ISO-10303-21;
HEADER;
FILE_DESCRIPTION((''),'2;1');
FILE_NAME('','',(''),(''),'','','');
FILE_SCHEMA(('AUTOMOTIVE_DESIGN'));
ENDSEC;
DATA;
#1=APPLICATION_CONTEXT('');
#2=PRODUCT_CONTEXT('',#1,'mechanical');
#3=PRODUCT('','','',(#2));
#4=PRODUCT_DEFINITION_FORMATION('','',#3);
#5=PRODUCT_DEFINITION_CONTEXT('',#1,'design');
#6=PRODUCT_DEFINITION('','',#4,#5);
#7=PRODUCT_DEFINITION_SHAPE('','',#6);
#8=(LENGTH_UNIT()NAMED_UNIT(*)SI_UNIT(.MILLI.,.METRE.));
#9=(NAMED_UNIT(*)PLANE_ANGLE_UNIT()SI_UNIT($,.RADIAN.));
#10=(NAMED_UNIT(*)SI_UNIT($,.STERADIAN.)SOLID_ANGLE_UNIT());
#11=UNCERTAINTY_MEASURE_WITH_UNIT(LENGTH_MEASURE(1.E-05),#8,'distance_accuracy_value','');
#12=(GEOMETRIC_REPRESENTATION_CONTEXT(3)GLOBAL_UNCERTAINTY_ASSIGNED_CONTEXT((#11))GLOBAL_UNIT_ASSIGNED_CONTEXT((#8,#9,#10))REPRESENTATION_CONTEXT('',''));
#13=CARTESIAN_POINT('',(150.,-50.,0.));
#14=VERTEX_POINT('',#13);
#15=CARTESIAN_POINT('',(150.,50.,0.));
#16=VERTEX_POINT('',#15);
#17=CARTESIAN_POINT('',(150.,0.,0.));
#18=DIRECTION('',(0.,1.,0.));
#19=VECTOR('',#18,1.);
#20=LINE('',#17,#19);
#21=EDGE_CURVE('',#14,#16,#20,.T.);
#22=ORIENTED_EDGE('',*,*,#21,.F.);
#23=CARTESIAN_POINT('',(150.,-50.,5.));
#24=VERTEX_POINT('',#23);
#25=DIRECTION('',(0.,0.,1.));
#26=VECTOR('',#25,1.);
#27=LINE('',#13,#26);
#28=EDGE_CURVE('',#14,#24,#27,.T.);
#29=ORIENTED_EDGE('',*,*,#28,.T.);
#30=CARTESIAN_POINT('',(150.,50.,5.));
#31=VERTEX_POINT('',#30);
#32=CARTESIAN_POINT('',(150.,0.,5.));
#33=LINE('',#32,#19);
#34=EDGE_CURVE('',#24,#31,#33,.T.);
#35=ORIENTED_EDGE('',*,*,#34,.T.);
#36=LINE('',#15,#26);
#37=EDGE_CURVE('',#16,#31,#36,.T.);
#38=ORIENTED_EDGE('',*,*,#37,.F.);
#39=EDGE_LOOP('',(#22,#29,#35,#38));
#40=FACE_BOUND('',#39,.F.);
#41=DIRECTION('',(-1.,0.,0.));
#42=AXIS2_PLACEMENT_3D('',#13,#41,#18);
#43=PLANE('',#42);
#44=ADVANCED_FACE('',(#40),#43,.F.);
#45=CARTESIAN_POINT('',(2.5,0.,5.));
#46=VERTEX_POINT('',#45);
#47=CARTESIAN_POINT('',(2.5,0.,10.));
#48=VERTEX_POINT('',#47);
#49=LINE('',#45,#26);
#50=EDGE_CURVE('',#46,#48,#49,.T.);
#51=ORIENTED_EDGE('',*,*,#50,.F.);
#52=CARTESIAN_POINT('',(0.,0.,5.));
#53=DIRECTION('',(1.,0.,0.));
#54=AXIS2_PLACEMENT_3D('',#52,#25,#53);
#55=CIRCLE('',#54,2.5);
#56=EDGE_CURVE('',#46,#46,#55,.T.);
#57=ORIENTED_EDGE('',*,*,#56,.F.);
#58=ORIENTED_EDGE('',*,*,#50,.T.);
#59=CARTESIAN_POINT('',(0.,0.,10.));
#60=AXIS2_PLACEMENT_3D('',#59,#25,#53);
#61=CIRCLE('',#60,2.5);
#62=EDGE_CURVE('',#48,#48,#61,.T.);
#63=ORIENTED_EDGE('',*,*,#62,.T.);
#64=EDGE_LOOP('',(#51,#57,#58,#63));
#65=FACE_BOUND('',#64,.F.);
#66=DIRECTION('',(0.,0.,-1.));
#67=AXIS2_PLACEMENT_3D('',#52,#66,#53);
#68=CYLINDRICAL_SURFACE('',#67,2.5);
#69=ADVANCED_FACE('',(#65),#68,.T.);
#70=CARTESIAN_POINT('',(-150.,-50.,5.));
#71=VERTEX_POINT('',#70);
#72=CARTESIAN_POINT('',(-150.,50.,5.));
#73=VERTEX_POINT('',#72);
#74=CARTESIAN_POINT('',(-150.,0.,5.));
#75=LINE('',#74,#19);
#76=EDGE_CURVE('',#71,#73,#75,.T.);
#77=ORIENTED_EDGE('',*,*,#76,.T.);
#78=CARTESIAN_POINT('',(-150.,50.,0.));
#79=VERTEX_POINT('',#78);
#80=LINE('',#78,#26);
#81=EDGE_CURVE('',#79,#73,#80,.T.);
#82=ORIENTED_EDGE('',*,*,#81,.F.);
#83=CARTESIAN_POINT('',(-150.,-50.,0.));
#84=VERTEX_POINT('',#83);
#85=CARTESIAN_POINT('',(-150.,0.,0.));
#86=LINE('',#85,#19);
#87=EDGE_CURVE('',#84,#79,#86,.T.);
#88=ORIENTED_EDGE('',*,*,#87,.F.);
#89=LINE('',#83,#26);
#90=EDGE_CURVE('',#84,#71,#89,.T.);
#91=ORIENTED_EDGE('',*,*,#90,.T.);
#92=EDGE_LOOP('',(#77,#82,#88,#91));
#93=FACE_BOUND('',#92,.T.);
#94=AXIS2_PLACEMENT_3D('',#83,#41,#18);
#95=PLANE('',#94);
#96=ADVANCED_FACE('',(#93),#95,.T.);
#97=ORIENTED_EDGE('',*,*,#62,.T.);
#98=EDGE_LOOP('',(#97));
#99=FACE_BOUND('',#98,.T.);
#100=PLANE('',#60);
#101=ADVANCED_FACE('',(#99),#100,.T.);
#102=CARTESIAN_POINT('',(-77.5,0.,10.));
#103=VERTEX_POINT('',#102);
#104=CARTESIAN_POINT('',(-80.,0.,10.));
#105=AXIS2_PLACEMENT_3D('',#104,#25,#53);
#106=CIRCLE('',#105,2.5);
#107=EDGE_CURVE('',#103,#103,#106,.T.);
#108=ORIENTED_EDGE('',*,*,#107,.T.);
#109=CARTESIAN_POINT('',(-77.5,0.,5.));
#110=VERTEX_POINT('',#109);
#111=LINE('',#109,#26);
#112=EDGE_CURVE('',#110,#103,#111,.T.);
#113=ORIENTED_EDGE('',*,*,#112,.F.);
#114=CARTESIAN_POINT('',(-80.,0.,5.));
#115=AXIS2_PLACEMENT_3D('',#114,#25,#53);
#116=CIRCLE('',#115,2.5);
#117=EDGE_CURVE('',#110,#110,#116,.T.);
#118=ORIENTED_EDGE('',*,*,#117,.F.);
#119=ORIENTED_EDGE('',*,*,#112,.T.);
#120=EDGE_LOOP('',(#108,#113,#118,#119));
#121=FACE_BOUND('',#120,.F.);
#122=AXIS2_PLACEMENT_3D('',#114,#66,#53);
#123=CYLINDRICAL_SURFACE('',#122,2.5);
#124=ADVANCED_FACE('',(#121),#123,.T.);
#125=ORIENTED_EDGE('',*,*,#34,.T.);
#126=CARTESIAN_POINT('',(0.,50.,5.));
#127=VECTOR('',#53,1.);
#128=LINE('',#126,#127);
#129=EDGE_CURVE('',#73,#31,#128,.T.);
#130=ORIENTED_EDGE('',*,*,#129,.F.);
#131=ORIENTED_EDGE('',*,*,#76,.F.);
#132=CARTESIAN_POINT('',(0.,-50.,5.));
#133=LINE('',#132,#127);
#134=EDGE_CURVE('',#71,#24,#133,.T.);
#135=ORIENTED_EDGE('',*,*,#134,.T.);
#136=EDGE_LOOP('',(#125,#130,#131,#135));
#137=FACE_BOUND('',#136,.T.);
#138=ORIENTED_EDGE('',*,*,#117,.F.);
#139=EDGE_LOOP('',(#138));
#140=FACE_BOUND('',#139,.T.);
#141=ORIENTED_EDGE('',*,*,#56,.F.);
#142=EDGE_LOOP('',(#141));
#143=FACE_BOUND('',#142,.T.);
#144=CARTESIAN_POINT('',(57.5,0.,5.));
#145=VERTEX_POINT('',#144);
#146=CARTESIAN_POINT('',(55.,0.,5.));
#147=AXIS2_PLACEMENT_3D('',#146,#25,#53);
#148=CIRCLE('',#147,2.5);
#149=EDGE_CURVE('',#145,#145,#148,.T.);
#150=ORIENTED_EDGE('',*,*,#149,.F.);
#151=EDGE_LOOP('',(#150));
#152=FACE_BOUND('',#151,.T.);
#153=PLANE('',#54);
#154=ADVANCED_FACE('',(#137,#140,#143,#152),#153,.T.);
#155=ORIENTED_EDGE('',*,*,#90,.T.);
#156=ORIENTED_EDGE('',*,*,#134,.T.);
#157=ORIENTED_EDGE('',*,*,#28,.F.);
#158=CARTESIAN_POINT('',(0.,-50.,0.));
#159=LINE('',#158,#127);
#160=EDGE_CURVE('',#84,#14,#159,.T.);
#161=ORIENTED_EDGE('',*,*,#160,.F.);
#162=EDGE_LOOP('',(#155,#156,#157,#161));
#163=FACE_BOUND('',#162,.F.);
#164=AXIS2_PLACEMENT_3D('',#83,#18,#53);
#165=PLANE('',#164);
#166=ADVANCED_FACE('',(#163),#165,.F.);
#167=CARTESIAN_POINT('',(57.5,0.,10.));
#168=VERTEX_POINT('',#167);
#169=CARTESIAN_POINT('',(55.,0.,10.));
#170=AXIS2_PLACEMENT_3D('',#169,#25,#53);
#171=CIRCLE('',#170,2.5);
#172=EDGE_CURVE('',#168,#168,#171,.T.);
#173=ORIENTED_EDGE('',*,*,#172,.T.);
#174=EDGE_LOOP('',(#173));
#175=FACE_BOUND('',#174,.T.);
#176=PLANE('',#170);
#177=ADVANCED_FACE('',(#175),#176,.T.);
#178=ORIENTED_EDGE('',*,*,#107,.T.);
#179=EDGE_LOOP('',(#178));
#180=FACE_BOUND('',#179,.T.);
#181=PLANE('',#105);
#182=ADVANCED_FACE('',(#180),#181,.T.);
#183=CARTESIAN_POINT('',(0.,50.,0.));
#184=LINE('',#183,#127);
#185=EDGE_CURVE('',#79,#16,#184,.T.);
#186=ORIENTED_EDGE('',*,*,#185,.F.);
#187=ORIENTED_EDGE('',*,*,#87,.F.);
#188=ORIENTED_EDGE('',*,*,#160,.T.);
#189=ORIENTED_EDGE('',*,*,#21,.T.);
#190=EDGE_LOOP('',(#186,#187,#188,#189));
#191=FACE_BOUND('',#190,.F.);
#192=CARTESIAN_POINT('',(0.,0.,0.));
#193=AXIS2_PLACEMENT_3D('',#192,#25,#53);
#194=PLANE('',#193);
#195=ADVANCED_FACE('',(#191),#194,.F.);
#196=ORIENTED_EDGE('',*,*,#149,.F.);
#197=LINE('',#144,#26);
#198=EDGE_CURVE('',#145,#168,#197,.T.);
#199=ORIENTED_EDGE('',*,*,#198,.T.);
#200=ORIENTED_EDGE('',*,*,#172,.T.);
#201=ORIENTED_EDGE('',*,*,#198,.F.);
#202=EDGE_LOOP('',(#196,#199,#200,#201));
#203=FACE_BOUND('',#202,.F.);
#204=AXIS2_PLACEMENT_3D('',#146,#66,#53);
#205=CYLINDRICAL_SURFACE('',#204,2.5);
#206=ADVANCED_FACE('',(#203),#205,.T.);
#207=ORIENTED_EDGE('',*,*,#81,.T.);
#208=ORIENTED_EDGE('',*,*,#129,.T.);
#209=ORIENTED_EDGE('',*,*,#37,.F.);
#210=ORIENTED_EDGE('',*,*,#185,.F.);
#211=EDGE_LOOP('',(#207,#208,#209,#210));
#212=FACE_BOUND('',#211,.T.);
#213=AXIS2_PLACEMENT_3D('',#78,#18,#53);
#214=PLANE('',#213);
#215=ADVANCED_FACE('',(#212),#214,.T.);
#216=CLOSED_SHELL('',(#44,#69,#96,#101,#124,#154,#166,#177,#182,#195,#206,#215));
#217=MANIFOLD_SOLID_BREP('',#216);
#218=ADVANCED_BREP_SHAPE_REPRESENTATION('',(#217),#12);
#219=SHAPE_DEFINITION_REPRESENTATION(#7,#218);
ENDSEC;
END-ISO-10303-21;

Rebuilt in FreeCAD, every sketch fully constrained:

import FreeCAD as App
import Part
import Sketcher

V = App.Vector
Q = App.Units.Quantity


def add_polygon(sketch, points):
    """Adds a closed chain of lines whose ends are joined by coincident constraints."""
    first, n = sketch.GeometryCount, len(points)
    for a, b in zip(points, points[1:] + points[:1]):
        sketch.addGeometry(Part.LineSegment(App.Vector(*a, 0), App.Vector(*b, 0)), False)
    for i in range(n):
        sketch.addConstraint(Sketcher.Constraint("Coincident", first + i, 2, first + (i + 1) % n, 1))

doc = App.newDocument("Part")
params = doc.addObject("Spreadsheet::Sheet", "Params")
for row, (alias, value) in enumerate([
    ("sketch1_width", "300 mm"),
    ("sketch1_height", "100 mm"),
    ("pad1_length", "5 mm"),
    ("sketch2_diameter", "5 mm"),
    ("pad2_length", "5 mm"),
    ("sketch3_diameter", "5 mm"),
    ("pad3_length", "5 mm"),
], start=1):
    params.set(f"A{row}", alias)
    params.set(f"B{row}", "=" + value)
    params.setAlias(f"B{row}", alias)

body = doc.addObject("PartDesign::Body", "Body")

sketch1 = doc.addObject("Sketcher::SketchObject", "Sketch")
body.addObject(sketch1)
sketch1.AttachmentSupport = (doc.XY_Plane, [""])
sketch1.MapMode = "FlatFace"
add_polygon(sketch1, [(-150, 50), (-150, -50), (150, -50), (150, 50)])
sketch1.addConstraint(Sketcher.Constraint("Vertical", 0))
sketch1.addConstraint(Sketcher.Constraint("Horizontal", 1))
sketch1.addConstraint(Sketcher.Constraint("Vertical", 2))
sketch1.addConstraint(Sketcher.Constraint("Horizontal", 3))
sketch1.addConstraint(Sketcher.Constraint("Symmetric", 0, 2, 2, 2, -1, 1))
sketch1.addConstraint(Sketcher.Constraint("DistanceX", 1, 1, 1, 2, Q("300 mm")))
sketch1.addConstraint(Sketcher.Constraint("DistanceY", 0, 2, 0, 1, Q("100 mm")))
sketch1.setExpression("Constraints[9]", "Params.sketch1_width")
sketch1.setExpression("Constraints[10]", "Params.sketch1_height")
pad1 = doc.addObject("PartDesign::Pad", "Pad")
body.addObject(pad1)
pad1.Profile = sketch1
pad1.setExpression("Length", "Params.pad1_length")

sketch2 = doc.addObject("Sketcher::SketchObject", "Sketch001")
body.addObject(sketch2)
sketch2.AttachmentSupport = (doc.XY_Plane, [""])
sketch2.MapMode = "FlatFace"
sketch2.AttachmentOffset = App.Placement(V(0, 0, 5), App.Rotation())
sketch2.addGeometry(Part.Circle(V(0, 0, 0), V(0, 0, 1), 2.5), False)
sketch2.addGeometry(Part.Circle(V(-80, 0, 0), V(0, 0, 1), 2.5), False)
sketch2.addConstraint(Sketcher.Constraint("Coincident", 0, 3, -1, 1))
sketch2.addConstraint(Sketcher.Constraint("Equal", 0, 1))
sketch2.addConstraint(Sketcher.Constraint("PointOnObject", 1, 3, -1))
sketch2.addConstraint(Sketcher.Constraint("Diameter", 0, Q("5 mm")))
sketch2.addConstraint(Sketcher.Constraint("DistanceX", 1, 3, -1, 1, Q("80 mm")))
sketch2.setExpression("Constraints[3]", "Params.sketch2_diameter")
pad2 = doc.addObject("PartDesign::Pad", "Pad001")
body.addObject(pad2)
pad2.Profile = sketch2
pad2.setExpression("Length", "Params.pad2_length")

sketch3 = doc.addObject("Sketcher::SketchObject", "Sketch002")
body.addObject(sketch3)
sketch3.AttachmentSupport = (doc.XY_Plane, [""])
sketch3.MapMode = "FlatFace"
sketch3.AttachmentOffset = App.Placement(V(0, 0, 5), App.Rotation())
sketch3.addGeometry(Part.Circle(V(0, 0, 0), V(0, 0, 1), 2.5), False)
sketch3.addGeometry(Part.Circle(V(-80, 0, 0), V(0, 0, 1), 2.5), False)
sketch3.addGeometry(Part.Circle(V(55, 0, 0), V(0, 0, 1), 2.5), False)
sketch3.addConstraint(Sketcher.Constraint("Coincident", 0, 3, -1, 1))
sketch3.addConstraint(Sketcher.Constraint("Equal", 0, 1))
sketch3.addConstraint(Sketcher.Constraint("Equal", 1, 2))
sketch3.addConstraint(Sketcher.Constraint("PointOnObject", 1, 3, -1))
sketch3.addConstraint(Sketcher.Constraint("PointOnObject", 2, 3, -1))
sketch3.addConstraint(Sketcher.Constraint("Diameter", 0, Q("5 mm")))
sketch3.addConstraint(Sketcher.Constraint("DistanceX", 1, 3, -1, 1, Q("80 mm")))
sketch3.addConstraint(Sketcher.Constraint("DistanceX", -1, 1, 2, 3, Q("55 mm")))
sketch3.setExpression("Constraints[5]", "Params.sketch3_diameter")
pad3 = doc.addObject("PartDesign::Pad", "Pad002")
body.addObject(pad3)
pad3.Profile = sketch3
pad3.setExpression("Length", "Params.pad3_length")

doc.recompute()
